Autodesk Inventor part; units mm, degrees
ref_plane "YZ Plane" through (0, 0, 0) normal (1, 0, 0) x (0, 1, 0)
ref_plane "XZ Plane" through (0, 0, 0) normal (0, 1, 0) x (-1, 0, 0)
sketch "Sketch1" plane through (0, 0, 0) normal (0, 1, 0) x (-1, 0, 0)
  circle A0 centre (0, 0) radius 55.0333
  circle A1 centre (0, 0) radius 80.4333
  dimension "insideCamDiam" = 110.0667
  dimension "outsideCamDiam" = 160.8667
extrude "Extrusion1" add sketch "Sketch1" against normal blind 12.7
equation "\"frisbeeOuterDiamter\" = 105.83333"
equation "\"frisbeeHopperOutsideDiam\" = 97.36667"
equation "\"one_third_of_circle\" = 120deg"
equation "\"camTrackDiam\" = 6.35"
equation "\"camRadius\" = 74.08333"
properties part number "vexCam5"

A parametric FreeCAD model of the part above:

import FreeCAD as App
import Part
import Sketcher
Q = App.Units.Quantity

doc = App.newDocument("Part")
body = doc.addObject("PartDesign::Body", "Body")

# Sketch on XZ plane
sketch1 = body.newObject("Sketcher::SketchObject", "Sketch")
sketch1.AttachmentSupport = (doc.getObject("XZ_Plane"), [""])
sketch1.MapMode = "FlatFace"
sketch1.addGeometry(Part.Circle(App.Vector(0, 0, 0), App.Vector(0, 0, 1), 80), False)
sketch1.addGeometry(Part.Circle(App.Vector(0, 0, 0), App.Vector(0, 0, 1), 55), False)
sketch1.addConstraint(Sketcher.Constraint("Coincident", 0, 3, -1, 1))
sketch1.addConstraint(Sketcher.Constraint("Coincident", 1, 3, -1, 1))
sketch1.addConstraint(Sketcher.Constraint("Diameter", 0, 160.8666))
sketch1.addConstraint(Sketcher.Constraint("Diameter", 1, 110.0666))
pad1 = body.newObject("PartDesign::Pad", "Pad")
pad1.Profile = sketch1
pad1.Length = Q("0.5 in")

doc.recompute()
